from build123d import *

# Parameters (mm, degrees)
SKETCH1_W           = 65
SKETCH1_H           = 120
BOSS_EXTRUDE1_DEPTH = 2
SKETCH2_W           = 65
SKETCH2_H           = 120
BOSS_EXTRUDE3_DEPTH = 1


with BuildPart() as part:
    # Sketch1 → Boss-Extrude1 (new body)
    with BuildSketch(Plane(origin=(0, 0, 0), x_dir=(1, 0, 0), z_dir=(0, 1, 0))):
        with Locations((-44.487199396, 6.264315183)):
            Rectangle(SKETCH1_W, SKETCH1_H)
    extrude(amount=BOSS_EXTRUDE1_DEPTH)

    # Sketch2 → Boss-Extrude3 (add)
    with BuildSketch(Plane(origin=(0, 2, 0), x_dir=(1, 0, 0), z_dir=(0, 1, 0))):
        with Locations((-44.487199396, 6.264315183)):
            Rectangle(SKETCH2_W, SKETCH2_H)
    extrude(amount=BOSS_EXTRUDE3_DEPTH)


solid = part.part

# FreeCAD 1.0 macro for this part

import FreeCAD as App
import Part
import Sketcher
from FreeCAD import Vector


def add_polygon(sketch, points):
    """Adds a closed chain of lines whose ends are joined by coincident constraints."""
    first, n = sketch.GeometryCount, len(points)
    for a, b in zip(points, points[1:] + points[:1]):
        sketch.addGeometry(Part.LineSegment(App.Vector(*a, 0), App.Vector(*b, 0)), False)
    for i in range(n):
        sketch.addConstraint(Sketcher.Constraint("Coincident", first + i, 2, first + (i + 1) % n, 1))

doc = App.newDocument("Part")
body = doc.addObject("PartDesign::Body", "Body")

# Sketch on XZ plane
sketch1 = body.newObject("Sketcher::SketchObject", "Sketch")
sketch1.AttachmentSupport = (doc.getObject("XZ_Plane"), [""])
sketch1.MapMode = "FlatFace"
add_polygon(sketch1, [(-77, -66), (-77, 54), (-12, 54), (-12, -66)])  # lines 0-3
sketch1.addConstraint(Sketcher.Constraint("Vertical", 0))
sketch1.addConstraint(Sketcher.Constraint("Horizontal", 1))
sketch1.addConstraint(Sketcher.Constraint("Vertical", 2))
sketch1.addConstraint(Sketcher.Constraint("Horizontal", 3))
sketch1.addConstraint(Sketcher.Constraint("DistanceX", 1, 1, 1, 2, 65.0))
sketch1.addConstraint(Sketcher.Constraint("DistanceY", 0, 1, 0, 2, 120.0))
sketch1.addConstraint(Sketcher.Constraint("DistanceX", 0, 2, -1, 1, 76.987199))
sketch1.addConstraint(Sketcher.Constraint("DistanceY", -1, 1, 0, 2, 53.735685))
pad1 = body.newObject("PartDesign::Pad", "Pad")
pad1.Profile = sketch1
pad1.Length = 2
pad1.Reversed = True

# Sketch on XZ plane
sketch2 = body.newObject("Sketcher::SketchObject", "Sketch001")
sketch2.AttachmentSupport = (doc.getObject("XZ_Plane"), [""])
sketch2.MapMode = "FlatFace"
sketch2.AttachmentOffset = App.Placement(Vector(0, 0, -2), App.Rotation())
add_polygon(sketch2, [(-77, -66), (-77, 54), (-12, 54), (-12, -66)])  # lines 0-3
sketch2.addConstraint(Sketcher.Constraint("Vertical", 0))
sketch2.addConstraint(Sketcher.Constraint("Horizontal", 1))
sketch2.addConstraint(Sketcher.Constraint("Vertical", 2))
sketch2.addConstraint(Sketcher.Constraint("Horizontal", 3))
sketch2.addConstraint(Sketcher.Constraint("DistanceX", 1, 1, 1, 2, 65.0))
sketch2.addConstraint(Sketcher.Constraint("DistanceY", 0, 1, 0, 2, 120.0))
sketch2.addConstraint(Sketcher.Constraint("DistanceX", 0, 2, -1, 1, 76.987199))
sketch2.addConstraint(Sketcher.Constraint("DistanceY", -1, 1, 0, 2, 53.735685))
pad2 = body.newObject("PartDesign::Pad", "Pad001")
pad2.Profile = sketch2
pad2.Length = 1
pad2.Reversed = True

doc.recompute()
